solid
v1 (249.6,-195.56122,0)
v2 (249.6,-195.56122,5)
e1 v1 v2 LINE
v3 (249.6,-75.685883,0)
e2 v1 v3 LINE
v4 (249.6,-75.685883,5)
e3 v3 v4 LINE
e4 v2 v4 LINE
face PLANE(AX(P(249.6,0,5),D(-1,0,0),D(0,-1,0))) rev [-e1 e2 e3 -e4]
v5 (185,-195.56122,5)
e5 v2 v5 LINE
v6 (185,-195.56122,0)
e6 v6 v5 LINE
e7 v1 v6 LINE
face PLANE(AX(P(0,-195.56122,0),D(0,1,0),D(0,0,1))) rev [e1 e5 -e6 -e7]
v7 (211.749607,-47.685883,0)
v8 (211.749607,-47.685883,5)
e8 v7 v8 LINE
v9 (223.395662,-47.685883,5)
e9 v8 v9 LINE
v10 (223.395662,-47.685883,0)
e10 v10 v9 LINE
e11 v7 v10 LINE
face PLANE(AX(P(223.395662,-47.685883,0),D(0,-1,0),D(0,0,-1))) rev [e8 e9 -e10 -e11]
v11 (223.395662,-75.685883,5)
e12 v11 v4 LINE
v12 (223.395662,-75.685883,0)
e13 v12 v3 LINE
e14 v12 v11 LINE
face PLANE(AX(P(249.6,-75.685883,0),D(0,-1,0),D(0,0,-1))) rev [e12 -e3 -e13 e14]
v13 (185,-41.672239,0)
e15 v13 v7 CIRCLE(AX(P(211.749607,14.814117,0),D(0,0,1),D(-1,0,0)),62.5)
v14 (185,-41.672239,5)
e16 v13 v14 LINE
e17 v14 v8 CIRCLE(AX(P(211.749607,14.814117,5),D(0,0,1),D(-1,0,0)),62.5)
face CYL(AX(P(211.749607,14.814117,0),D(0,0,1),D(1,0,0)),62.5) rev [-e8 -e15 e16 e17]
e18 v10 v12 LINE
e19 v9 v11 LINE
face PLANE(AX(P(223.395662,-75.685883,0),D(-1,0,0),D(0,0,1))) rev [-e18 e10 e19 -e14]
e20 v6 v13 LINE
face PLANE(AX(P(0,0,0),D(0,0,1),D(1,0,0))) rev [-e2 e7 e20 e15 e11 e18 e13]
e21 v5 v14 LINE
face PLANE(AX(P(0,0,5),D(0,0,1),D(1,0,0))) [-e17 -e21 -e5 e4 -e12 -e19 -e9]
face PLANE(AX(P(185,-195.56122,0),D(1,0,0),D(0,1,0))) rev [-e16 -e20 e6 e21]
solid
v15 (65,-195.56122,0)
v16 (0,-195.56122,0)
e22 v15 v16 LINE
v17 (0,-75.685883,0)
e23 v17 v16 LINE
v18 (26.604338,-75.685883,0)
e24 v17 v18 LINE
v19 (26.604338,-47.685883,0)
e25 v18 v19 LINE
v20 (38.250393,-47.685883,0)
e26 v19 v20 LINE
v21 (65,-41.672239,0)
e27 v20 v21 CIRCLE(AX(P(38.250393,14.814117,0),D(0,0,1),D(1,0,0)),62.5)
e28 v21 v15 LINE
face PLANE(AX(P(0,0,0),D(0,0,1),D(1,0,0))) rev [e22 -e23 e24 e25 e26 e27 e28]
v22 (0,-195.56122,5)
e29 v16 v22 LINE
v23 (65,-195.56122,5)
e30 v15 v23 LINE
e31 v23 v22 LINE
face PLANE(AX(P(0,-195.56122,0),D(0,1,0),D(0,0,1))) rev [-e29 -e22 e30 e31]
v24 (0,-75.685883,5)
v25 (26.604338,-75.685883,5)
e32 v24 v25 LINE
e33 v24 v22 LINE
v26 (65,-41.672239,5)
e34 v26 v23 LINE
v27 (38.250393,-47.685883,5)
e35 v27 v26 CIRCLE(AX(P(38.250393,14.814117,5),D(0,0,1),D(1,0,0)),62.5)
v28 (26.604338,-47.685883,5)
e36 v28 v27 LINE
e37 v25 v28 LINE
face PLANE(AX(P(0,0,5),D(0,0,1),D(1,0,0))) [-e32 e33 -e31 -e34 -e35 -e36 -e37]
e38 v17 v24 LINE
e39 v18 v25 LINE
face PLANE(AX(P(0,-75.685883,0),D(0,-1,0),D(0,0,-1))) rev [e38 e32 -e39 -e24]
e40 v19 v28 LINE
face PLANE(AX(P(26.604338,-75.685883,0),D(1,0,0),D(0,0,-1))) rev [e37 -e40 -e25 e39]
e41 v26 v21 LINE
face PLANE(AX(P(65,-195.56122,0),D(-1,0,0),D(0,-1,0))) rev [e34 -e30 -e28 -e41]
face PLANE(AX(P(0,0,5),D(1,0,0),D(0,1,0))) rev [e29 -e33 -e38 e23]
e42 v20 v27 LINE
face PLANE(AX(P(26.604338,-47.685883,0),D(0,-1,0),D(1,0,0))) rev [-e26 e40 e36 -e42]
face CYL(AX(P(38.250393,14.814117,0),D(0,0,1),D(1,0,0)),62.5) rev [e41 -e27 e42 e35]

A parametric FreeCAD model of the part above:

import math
import FreeCAD as App
import Part
import Sketcher

V = App.Vector

doc = App.newDocument("Part")
body = doc.addObject("PartDesign::Body", "Body")
body.AllowCompound = True

# Sketch on XY plane
sketch1 = doc.addObject("Sketcher::SketchObject", "Sketch")
body.addObject(sketch1)
sketch1.AttachmentSupport = (doc.XY_Plane, [""])
sketch1.MapMode = "FlatFace"
sketch1.addGeometry([
    Part.LineSegment(V(0, 0, 0), V(0, -267, 0)),
    Part.LineSegment(V(0, -267, 0), V(250, -267, 0)),
    Part.LineSegment(V(250, -267, 0), V(250, 0, 0)),
    Part.LineSegment(V(250, 0, 0), V(0, 0, 0)),
], False)
sketch1.addConstraint([
    Sketcher.Constraint("Coincident", 0, 2, 1, 1),
    Sketcher.Constraint("Coincident", 1, 2, 2, 1),
    Sketcher.Constraint("Coincident", 2, 2, 3, 1),
    Sketcher.Constraint("Coincident", 3, 2, 0, 1),
    Sketcher.Constraint("Vertical", 0),
    Sketcher.Constraint("Horizontal", 1),
    Sketcher.Constraint("Vertical", 2),
    Sketcher.Constraint("Horizontal", 3),
    Sketcher.Constraint("Coincident", 3, 2, -1, 1),
    Sketcher.Constraint("DistanceX", 1, 1, 1, 2, 249.6),
    Sketcher.Constraint("DistanceY", 0, 2, 0, 1, 267.4),
])
pad1 = doc.addObject("PartDesign::Pad", "Pad")
body.addObject(pad1)
pad1.Profile = sketch1
pad1.Length = 5

# Sketch on XY plane
sketch2 = doc.addObject("Sketcher::SketchObject", "Sketch001")
body.addObject(sketch2)
sketch2.AttachmentSupport = (doc.XY_Plane, [""])
sketch2.MapMode = "FlatFace"
sketch2.AttachmentOffset = App.Placement(V(0, 0, 5), App.Rotation())
sketch2.addGeometry([
    Part.LineSegment(V(0, -196, 0), V(0, -267, 0)),  # 0
    Part.LineSegment(V(0, -267, 0), V(250, -267, 0)),  # 1
    Part.LineSegment(V(250, -267, 0), V(250, -196, 0)),  # 2
    Part.LineSegment(V(250, -196, 0), V(0, -196, 0)),  # 3
    Part.LineSegment(V(250, 0, 0), V(151, 0, 0)),  # 4
    Part.ArcOfCircle(Part.Circle(V(212, 15, 0), V(0, 0, 1), 63), math.radians(-166), math.radians(-90)),  # 5
    Part.LineSegment(V(212, -48, 0), V(223, -48, 0)),  # 6
    Part.LineSegment(V(223, -48, 0), V(223, -76, 0)),  # 7
    Part.LineSegment(V(223, -76, 0), V(250, -76, 0)),  # 8
    Part.LineSegment(V(250, -76, 0), V(250, 0, 0)),  # 9
    Part.LineSegment(V(99, 0, 0), V(0, 0, 0)),  # 10
    Part.LineSegment(V(0, 0, 0), V(0, -76, 0)),  # 11
    Part.LineSegment(V(0, -76, 0), V(27, -76, 0)),  # 12
    Part.LineSegment(V(27, -76, 0), V(27, -48, 0)),  # 13
    Part.LineSegment(V(27, -48, 0), V(38, -48, 0)),  # 14
    Part.ArcOfCircle(Part.Circle(V(38, 15, 0), V(0, 0, 1), 63), math.radians(-90), math.radians(-14)),  # 15
], False)
sketch2.addConstraint([
    Sketcher.Constraint("Coincident", 0, 2, 1, 1),
    Sketcher.Constraint("Coincident", 1, 2, 2, 1),
    Sketcher.Constraint("Coincident", 2, 2, 3, 1),
    Sketcher.Constraint("Coincident", 3, 2, 0, 1),
    Sketcher.Constraint("Coincident", 4, 2, 5, 1),
    Sketcher.Constraint("Tangent", 5, 2, 6, 1),
    Sketcher.Constraint("Coincident", 6, 2, 7, 1),
    Sketcher.Constraint("Coincident", 7, 2, 8, 1),
    Sketcher.Constraint("Coincident", 8, 2, 9, 1),
    Sketcher.Constraint("Coincident", 9, 2, 4, 1),
    Sketcher.Constraint("Coincident", 10, 2, 11, 1),
    Sketcher.Constraint("Coincident", 11, 2, 12, 1),
    Sketcher.Constraint("Coincident", 12, 2, 13, 1),
    Sketcher.Constraint("Coincident", 13, 2, 14, 1),
    Sketcher.Constraint("Tangent", 14, 2, 15, 1),
    Sketcher.Constraint("Coincident", 15, 2, 10, 1),
    Sketcher.Constraint("Vertical", 0),
    Sketcher.Constraint("Horizontal", 1),
    Sketcher.Constraint("Vertical", 2),
    Sketcher.Constraint("Horizontal", 3),
    Sketcher.Constraint("Horizontal", 4),
    Sketcher.Constraint("Horizontal", 6),
    Sketcher.Constraint("Vertical", 7),
    Sketcher.Constraint("Horizontal", 8),
    Sketcher.Constraint("Vertical", 9),
    Sketcher.Constraint("Horizontal", 10),
    Sketcher.Constraint("Vertical", 11),
    Sketcher.Constraint("Horizontal", 12),
    Sketcher.Constraint("Vertical", 13),
    Sketcher.Constraint("Horizontal", 14),
    Sketcher.Constraint("Coincident", 10, 2, -1, 1),
    Sketcher.Constraint("Equal", 5, 15),
    Sketcher.Constraint("PointOnObject", 0, 2, -2),
    Sketcher.Constraint("PointOnObject", 4, 2, -1),
    Sketcher.Constraint("Horizontal", 5, 3, 15, 3),
    Sketcher.Constraint("Horizontal", 8, 2, 11, 2),
    Sketcher.Constraint("Vertical", 2, 2, 8, 2),
    Sketcher.Constraint("Equal", 6, 14),
    Sketcher.Constraint("Radius", 5, 62.5),
    Sketcher.Constraint("DistanceY", 7, 2, 7, 1, 28.0),
    Sketcher.Constraint("DistanceX", 1, 1, 1, 2, 249.6),
    Sketcher.Constraint("DistanceY", 0, 2, -1, 1, 267.4),
    Sketcher.Constraint("DistanceX", 4, 2, 4, 1, 98.569351),
    Sketcher.Constraint("DistanceX", 8, 1, 8, 2, 26.204338),
    Sketcher.Constraint("DistanceX", 10, 2, 10, 1, 98.969351),
    Sketcher.Constraint("DistanceY", 0, 2, 0, 1, 71.83878),
    Sketcher.Constraint("DistanceX", 6, 1, 6, 2, 11.646054),
])
pocket1 = doc.addObject("PartDesign::Pocket", "Pocket")
body.addObject(pocket1)
pocket1.Profile = sketch2
pocket1.Type = "ThroughAll"

# Sketch on XY plane
sketch3 = doc.addObject("Sketcher::SketchObject", "Sketch002")
body.addObject(sketch3)
sketch3.AttachmentSupport = (doc.XY_Plane, [""])
sketch3.MapMode = "FlatFace"
sketch3.AttachmentOffset = App.Placement(V(0, 0, 5), App.Rotation())
sketch3.addGeometry([
    Part.LineSegment(V(65, 0, 0), V(65, -196, 0)),
    Part.LineSegment(V(65, -196, 0), V(185, -196, 0)),
    Part.LineSegment(V(185, -196, 0), V(185, 0, 0)),
    Part.LineSegment(V(185, 0, 0), V(65, 0, 0)),
], False)
sketch3.addConstraint([
    Sketcher.Constraint("Coincident", 0, 2, 1, 1),
    Sketcher.Constraint("Coincident", 1, 2, 2, 1),
    Sketcher.Constraint("Coincident", 2, 2, 3, 1),
    Sketcher.Constraint("Coincident", 3, 2, 0, 1),
    Sketcher.Constraint("Vertical", 0),
    Sketcher.Constraint("Horizontal", 1),
    Sketcher.Constraint("Vertical", 2),
    Sketcher.Constraint("Horizontal", 3),
    Sketcher.Constraint("PointOnObject", 2, 2, -1),
    Sketcher.Constraint("DistanceX", 1, 1, 1, 2, 120.0),
    Sketcher.Constraint("DistanceX", -1, 1, 0, 2, 65.0),
    Sketcher.Constraint("DistanceY", 0, 2, 0, 1, 195.56122),
])
pocket2 = doc.addObject("PartDesign::Pocket", "Pocket001")
body.addObject(pocket2)
pocket2.Profile = sketch3
pocket2.Type = "ThroughAll"

doc.recompute()
